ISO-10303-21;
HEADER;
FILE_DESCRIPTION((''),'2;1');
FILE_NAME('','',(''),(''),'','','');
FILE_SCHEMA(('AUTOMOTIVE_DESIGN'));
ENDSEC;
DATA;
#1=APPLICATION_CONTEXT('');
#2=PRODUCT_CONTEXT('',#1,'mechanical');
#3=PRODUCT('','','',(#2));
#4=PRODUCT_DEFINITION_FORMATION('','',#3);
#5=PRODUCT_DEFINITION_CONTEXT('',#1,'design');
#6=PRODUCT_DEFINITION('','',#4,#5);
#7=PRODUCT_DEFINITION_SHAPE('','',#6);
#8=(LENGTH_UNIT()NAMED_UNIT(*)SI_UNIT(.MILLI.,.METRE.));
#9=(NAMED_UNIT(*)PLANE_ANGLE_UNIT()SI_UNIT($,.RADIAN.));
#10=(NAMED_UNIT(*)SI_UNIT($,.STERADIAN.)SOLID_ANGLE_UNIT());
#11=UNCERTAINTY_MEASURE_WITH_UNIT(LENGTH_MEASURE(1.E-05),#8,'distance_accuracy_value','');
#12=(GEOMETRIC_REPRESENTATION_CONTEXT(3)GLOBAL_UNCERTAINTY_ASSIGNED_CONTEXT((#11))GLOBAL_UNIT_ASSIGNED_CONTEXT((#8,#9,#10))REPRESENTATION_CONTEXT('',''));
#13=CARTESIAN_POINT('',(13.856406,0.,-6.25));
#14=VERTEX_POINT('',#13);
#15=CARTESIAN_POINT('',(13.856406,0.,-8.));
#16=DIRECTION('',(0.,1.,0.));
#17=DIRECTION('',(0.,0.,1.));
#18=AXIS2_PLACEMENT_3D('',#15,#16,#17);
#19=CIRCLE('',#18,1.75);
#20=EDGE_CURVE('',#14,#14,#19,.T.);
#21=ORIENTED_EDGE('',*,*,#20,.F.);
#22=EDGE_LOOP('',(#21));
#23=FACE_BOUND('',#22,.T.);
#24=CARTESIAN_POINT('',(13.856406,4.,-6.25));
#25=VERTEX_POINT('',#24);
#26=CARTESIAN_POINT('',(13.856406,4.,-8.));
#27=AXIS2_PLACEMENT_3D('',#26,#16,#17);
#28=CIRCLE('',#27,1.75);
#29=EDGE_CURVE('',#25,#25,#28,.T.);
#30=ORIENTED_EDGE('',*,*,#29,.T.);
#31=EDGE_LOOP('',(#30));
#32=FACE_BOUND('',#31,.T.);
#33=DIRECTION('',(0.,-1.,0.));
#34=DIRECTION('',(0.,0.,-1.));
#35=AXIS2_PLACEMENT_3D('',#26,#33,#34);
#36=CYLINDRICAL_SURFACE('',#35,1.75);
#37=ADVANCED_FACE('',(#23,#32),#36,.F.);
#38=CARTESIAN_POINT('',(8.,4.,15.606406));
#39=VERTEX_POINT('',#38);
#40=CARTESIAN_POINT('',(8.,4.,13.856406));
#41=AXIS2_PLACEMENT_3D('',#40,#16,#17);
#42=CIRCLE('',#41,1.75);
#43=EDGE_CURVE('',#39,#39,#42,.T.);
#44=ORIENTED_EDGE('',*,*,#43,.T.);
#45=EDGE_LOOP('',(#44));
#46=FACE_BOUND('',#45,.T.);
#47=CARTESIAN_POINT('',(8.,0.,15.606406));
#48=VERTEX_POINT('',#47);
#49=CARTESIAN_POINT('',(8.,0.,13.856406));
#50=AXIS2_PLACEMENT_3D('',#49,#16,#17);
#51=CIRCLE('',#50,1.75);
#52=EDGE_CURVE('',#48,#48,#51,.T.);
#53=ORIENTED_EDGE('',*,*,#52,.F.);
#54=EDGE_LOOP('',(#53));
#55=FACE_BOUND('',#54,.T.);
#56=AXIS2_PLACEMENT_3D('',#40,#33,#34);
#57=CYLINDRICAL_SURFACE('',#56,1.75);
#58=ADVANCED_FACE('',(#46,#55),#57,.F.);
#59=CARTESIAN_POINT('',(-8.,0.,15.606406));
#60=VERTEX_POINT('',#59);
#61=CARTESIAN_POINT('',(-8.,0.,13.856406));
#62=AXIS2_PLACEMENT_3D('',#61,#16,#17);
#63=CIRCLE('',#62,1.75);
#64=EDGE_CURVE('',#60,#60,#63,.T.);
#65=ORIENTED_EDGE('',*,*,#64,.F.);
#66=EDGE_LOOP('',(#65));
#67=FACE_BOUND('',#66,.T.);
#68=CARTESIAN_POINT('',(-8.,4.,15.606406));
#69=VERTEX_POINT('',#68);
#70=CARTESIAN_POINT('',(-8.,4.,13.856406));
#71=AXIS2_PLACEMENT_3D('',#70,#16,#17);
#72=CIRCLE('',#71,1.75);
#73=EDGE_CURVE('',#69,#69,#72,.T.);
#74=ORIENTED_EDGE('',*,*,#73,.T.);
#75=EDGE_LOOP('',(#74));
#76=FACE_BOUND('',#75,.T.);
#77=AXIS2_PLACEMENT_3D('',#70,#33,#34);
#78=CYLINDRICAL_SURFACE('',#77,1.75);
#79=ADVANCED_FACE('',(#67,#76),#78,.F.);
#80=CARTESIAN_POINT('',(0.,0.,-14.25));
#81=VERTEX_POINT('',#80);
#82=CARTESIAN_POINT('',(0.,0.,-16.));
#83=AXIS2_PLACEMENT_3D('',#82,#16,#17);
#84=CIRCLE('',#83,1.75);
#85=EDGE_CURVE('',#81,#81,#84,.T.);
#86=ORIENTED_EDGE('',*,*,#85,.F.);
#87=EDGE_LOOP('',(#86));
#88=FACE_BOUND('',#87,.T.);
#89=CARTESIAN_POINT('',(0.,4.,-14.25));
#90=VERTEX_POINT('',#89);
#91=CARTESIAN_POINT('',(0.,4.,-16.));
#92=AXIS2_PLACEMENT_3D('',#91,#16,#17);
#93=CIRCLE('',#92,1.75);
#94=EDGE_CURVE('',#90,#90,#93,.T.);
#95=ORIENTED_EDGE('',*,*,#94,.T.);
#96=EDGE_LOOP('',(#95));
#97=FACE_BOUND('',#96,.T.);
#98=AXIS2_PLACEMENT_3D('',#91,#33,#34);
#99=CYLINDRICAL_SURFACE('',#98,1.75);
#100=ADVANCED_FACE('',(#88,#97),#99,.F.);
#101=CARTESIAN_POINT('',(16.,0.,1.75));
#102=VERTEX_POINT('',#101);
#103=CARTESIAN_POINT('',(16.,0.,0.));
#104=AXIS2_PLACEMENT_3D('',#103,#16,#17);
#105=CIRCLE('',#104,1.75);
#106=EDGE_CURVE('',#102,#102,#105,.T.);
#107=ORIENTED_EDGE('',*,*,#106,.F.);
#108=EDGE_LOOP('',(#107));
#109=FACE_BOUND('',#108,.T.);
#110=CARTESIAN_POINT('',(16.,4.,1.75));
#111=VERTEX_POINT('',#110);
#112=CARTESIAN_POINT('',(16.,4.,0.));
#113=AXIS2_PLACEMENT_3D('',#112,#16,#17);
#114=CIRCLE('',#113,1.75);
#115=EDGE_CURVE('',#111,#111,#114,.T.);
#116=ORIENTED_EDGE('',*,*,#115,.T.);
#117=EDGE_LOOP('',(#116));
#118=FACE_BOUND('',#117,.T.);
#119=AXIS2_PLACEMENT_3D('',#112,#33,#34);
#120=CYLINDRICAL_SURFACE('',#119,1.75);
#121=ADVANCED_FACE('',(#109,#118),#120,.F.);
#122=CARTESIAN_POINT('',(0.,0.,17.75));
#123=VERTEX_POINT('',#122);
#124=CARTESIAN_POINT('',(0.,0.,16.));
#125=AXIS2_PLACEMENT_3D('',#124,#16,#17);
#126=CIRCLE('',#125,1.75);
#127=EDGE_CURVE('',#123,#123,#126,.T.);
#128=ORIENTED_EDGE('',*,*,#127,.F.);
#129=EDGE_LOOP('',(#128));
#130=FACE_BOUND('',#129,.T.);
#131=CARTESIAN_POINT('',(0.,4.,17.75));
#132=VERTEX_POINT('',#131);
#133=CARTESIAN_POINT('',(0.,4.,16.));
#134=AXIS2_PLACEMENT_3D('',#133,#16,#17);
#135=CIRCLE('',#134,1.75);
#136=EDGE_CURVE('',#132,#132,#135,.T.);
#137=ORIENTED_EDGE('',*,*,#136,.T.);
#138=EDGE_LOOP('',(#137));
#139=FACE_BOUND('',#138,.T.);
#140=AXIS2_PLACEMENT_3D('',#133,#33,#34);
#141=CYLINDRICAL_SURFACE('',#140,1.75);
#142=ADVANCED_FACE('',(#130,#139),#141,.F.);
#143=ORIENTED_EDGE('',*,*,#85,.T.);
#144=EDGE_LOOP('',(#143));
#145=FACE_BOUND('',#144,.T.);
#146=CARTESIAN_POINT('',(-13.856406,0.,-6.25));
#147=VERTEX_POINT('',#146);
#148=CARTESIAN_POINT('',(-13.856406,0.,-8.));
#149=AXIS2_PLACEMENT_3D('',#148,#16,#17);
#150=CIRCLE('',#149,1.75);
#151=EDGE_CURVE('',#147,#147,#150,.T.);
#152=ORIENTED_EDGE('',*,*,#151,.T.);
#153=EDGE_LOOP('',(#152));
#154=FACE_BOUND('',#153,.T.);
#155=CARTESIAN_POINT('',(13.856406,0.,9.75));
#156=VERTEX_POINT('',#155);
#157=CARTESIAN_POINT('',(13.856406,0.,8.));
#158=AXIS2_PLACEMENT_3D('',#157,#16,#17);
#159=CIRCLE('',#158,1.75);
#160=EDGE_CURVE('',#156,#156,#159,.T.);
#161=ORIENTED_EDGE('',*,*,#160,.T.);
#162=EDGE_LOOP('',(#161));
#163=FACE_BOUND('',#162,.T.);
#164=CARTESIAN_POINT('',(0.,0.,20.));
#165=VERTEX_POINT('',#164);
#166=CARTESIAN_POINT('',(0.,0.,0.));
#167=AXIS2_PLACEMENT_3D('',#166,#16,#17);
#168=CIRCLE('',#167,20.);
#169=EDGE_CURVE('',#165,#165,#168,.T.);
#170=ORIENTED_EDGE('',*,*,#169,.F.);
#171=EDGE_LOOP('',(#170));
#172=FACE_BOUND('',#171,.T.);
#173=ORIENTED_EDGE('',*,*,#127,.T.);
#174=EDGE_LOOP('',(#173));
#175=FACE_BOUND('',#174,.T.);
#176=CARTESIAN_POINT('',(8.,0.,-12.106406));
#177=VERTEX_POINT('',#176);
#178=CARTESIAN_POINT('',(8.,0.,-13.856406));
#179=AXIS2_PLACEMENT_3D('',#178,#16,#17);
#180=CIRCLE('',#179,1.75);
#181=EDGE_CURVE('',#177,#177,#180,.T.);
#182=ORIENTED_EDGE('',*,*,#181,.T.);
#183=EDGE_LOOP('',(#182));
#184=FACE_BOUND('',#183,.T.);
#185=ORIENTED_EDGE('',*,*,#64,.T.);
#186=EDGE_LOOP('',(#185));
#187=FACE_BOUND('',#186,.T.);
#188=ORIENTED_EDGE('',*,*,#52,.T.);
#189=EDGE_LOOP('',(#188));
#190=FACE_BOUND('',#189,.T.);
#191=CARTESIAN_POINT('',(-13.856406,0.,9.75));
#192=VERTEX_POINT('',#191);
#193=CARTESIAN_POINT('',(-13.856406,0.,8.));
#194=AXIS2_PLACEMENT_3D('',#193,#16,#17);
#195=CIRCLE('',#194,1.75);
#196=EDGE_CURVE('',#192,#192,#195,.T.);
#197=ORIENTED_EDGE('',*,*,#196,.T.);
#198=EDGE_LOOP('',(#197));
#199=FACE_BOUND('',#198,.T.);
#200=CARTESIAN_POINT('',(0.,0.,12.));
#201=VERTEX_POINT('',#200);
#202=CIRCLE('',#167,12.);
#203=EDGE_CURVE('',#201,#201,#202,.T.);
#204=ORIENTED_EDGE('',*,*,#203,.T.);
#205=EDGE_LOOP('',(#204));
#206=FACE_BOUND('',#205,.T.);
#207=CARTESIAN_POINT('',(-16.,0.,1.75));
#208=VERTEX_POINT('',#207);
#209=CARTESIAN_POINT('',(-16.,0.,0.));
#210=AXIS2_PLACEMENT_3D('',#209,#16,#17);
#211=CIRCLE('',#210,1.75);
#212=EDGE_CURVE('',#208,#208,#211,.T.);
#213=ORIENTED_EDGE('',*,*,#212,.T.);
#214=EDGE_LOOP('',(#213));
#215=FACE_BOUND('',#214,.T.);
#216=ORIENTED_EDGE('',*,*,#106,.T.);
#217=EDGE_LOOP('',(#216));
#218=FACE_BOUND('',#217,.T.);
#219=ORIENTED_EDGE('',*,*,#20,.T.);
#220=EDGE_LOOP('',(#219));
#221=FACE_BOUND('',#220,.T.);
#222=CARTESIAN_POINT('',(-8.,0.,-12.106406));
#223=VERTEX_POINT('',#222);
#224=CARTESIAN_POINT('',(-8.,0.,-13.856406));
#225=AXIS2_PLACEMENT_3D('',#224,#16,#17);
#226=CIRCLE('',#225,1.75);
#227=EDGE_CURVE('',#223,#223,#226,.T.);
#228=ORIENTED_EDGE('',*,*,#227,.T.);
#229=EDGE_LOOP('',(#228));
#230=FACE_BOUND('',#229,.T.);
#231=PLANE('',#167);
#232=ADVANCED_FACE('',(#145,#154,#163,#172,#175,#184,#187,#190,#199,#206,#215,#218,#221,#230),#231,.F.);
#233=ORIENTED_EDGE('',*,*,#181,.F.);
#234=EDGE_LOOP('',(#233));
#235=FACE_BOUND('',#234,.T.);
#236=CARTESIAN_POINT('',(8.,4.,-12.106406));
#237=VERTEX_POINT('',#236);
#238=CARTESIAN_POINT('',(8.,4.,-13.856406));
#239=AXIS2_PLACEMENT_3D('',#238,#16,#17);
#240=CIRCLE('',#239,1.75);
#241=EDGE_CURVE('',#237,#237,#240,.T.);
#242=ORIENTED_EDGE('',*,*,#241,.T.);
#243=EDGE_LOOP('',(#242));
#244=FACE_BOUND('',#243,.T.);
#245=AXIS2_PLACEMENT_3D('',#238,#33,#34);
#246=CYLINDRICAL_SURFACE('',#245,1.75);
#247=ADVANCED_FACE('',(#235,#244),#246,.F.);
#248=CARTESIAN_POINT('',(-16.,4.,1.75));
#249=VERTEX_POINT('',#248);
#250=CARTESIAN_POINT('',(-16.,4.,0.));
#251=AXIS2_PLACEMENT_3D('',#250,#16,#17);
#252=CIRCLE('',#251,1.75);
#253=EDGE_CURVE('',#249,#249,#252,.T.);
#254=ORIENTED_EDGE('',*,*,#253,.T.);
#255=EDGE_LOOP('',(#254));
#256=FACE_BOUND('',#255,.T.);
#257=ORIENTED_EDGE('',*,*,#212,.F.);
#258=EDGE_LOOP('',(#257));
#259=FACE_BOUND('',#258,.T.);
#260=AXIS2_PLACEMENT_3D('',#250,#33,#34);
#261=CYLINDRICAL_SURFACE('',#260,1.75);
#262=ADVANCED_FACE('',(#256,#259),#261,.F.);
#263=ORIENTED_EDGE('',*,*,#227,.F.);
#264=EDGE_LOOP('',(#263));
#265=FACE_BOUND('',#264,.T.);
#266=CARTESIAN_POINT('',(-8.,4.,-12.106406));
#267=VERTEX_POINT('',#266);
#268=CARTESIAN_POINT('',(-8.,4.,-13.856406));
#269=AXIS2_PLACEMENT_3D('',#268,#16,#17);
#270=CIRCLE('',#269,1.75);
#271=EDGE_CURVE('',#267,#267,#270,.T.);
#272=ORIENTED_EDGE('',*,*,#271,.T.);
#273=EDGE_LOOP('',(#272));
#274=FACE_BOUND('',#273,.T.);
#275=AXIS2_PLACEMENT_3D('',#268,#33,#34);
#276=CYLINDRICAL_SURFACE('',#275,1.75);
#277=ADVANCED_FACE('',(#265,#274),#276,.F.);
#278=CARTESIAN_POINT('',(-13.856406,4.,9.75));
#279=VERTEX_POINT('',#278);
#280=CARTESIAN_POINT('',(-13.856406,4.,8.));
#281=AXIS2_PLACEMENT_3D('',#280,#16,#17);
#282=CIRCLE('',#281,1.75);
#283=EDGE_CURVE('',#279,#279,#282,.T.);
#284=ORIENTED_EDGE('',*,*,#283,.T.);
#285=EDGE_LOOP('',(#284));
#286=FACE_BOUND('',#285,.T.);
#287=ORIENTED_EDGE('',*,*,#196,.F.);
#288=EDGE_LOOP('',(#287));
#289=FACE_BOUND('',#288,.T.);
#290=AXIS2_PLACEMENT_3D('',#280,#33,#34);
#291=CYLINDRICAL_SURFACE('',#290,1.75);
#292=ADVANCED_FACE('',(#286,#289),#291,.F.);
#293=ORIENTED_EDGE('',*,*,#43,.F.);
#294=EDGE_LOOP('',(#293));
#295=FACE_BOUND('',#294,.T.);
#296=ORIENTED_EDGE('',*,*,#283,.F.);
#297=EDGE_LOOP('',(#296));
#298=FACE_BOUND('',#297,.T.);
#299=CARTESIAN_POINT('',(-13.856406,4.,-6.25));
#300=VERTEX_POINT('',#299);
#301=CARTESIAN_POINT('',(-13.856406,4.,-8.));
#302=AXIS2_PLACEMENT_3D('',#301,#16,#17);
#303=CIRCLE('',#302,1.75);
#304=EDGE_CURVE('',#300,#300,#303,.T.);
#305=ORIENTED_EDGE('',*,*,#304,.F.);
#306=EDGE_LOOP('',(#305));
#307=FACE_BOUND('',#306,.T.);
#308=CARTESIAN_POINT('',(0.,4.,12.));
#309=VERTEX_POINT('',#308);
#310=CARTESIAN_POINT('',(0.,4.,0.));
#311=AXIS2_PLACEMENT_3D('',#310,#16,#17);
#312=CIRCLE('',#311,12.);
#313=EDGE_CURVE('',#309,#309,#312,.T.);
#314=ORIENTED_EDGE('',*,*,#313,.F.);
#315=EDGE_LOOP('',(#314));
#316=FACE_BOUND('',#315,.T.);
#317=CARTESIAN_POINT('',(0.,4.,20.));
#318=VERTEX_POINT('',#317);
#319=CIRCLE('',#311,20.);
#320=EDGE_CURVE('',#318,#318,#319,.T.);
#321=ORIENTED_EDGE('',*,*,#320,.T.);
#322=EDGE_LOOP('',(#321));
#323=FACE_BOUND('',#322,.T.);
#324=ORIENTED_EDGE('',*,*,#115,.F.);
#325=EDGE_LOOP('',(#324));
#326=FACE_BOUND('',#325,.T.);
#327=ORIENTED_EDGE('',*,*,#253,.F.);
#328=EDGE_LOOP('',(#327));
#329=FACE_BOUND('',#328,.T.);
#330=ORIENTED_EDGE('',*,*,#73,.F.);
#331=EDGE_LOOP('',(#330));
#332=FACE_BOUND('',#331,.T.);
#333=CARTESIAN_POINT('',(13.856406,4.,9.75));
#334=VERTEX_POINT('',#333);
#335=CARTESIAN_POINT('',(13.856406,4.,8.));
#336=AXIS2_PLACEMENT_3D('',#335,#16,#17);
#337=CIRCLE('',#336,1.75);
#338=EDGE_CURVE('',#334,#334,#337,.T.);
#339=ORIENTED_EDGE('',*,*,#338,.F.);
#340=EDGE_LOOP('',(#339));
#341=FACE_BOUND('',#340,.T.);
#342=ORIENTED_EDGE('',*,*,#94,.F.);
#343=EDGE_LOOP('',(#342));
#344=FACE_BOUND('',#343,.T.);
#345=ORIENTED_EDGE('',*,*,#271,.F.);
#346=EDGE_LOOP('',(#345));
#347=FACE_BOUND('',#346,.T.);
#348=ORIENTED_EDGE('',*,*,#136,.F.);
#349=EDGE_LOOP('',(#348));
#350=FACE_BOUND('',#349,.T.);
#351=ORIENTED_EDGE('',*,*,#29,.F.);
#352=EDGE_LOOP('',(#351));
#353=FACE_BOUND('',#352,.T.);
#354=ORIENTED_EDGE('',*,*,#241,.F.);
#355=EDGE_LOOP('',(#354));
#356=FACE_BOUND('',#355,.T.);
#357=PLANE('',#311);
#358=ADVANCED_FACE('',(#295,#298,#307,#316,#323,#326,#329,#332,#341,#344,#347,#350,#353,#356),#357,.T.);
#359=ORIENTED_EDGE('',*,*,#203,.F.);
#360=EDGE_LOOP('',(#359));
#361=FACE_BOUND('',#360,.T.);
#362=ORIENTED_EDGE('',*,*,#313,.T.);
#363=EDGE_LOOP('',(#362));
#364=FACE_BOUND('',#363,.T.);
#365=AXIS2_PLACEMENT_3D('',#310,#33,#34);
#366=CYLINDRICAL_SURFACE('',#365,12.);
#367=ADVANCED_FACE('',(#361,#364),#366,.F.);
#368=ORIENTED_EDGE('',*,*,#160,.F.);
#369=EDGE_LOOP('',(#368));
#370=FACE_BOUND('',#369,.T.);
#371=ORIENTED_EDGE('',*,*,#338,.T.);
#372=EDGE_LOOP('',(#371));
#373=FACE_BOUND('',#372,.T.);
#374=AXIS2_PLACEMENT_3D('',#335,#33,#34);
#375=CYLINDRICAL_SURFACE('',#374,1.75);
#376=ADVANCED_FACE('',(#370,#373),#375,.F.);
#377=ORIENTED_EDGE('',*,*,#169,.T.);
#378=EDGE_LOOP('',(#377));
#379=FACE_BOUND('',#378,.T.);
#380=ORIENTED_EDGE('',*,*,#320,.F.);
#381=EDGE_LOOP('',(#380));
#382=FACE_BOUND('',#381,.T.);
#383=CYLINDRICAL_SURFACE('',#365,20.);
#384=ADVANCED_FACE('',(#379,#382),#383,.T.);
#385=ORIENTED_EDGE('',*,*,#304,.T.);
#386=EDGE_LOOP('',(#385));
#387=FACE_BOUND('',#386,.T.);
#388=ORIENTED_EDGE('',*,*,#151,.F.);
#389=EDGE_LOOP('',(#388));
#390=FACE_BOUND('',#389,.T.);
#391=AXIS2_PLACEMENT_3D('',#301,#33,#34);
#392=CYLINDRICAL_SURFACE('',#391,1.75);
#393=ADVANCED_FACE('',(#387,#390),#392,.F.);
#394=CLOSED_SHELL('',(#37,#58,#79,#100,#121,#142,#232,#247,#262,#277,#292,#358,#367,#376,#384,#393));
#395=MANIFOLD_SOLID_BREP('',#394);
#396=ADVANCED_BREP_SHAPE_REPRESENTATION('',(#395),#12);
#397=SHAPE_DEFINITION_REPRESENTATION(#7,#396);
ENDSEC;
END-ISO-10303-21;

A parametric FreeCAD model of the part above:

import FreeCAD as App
import Part
import Sketcher
from FreeCAD import Vector

doc = App.newDocument("Part")
params = doc.addObject("Spreadsheet::Sheet", "Params")
for row, (alias, value) in enumerate([
    ("sketch1_diameter", "40 mm"),
    ("sketch1_diameter2", "24 mm"),
    ("sketch1_diameter3", "3.5 mm"),
    ("pad1_length", "4 mm"),
], start=1):
    params.set(f"A{row}", alias)
    params.set(f"B{row}", "=" + value)
    params.setAlias(f"B{row}", alias)

body = doc.addObject("PartDesign::Body", "Body")

# Sketch on XZ plane
sketch1 = body.newObject("Sketcher::SketchObject", "Sketch")
sketch1.AttachmentSupport = (doc.getObject("XZ_Plane"), [""])
sketch1.MapMode = "FlatFace"
sketch1.addGeometry(Part.Circle(Vector(0, 0, 0), Vector(0, 0, 1), 20), False)
sketch1.addGeometry(Part.Circle(Vector(-13.856406, -8, 0), Vector(0, 0, 1), 1.75), False)
sketch1.addGeometry(Part.Circle(Vector(-8, -13.856406, 0), Vector(0, 0, 1), 1.75), False)
sketch1.addGeometry(Part.Circle(Vector(0, -16, 0), Vector(0, 0, 1), 1.75), False)
sketch1.addGeometry(Part.Circle(Vector(-16, 0, 0), Vector(0, 0, 1), 1.75), False)
sketch1.addGeometry(Part.Circle(Vector(-13.856406, 8, 0), Vector(0, 0, 1), 1.75), False)
sketch1.addGeometry(Part.Circle(Vector(-8, 13.856406, 0), Vector(0, 0, 1), 1.75), False)
sketch1.addGeometry(Part.Circle(Vector(8, -13.856406, 0), Vector(0, 0, 1), 1.75), False)
sketch1.addGeometry(Part.Circle(Vector(13.856406, -8, 0), Vector(0, 0, 1), 1.75), False)
sketch1.addGeometry(Part.Circle(Vector(16, 0, 0), Vector(0, 0, 1), 1.75), False)
sketch1.addGeometry(Part.Circle(Vector(0, 0, 0), Vector(0, 0, 1), 12), False)
sketch1.addGeometry(Part.Circle(Vector(0, 16, 0), Vector(0, 0, 1), 1.75), False)
sketch1.addGeometry(Part.Circle(Vector(8, 13.856406, 0), Vector(0, 0, 1), 1.75), False)
sketch1.addGeometry(Part.Circle(Vector(13.856406, 8, 0), Vector(0, 0, 1), 1.75), False)
sketch1.addConstraint(Sketcher.Constraint("Coincident", 0, 3, -1, 1))
sketch1.addConstraint(Sketcher.Constraint("Coincident", 10, 3, -1, 1))
sketch1.addConstraint(Sketcher.Constraint("Equal", 1, 2))
sketch1.addConstraint(Sketcher.Constraint("Equal", 2, 3))
sketch1.addConstraint(Sketcher.Constraint("Equal", 3, 4))
sketch1.addConstraint(Sketcher.Constraint("Equal", 4, 5))
sketch1.addConstraint(Sketcher.Constraint("Equal", 5, 6))
sketch1.addConstraint(Sketcher.Constraint("Equal", 6, 7))
sketch1.addConstraint(Sketcher.Constraint("Equal", 7, 8))
sketch1.addConstraint(Sketcher.Constraint("Equal", 8, 9))
sketch1.addConstraint(Sketcher.Constraint("Equal", 9, 11))
sketch1.addConstraint(Sketcher.Constraint("Equal", 11, 12))
sketch1.addConstraint(Sketcher.Constraint("Equal", 12, 13))
sketch1.addConstraint(Sketcher.Constraint("Symmetric", 6, 3, 7, 3, -1, 1))
sketch1.addConstraint(Sketcher.Constraint("Symmetric", 5, 3, 8, 3, -1, 1))
sketch1.addConstraint(Sketcher.Constraint("Symmetric", 4, 3, 9, 3, -1, 1))
sketch1.addConstraint(Sketcher.Constraint("Symmetric", 3, 3, 11, 3, -1, 1))
sketch1.addConstraint(Sketcher.Constraint("Symmetric", 2, 3, 12, 3, -1, 1))
sketch1.addConstraint(Sketcher.Constraint("Symmetric", 1, 3, 13, 3, -1, 1))
sketch1.addConstraint(Sketcher.Constraint("Symmetric", 2, 3, 7, 3, -2))
sketch1.addConstraint(Sketcher.Constraint("Symmetric", 1, 3, 8, 3, -2))
sketch1.addConstraint(Sketcher.Constraint("PointOnObject", 3, 3, -2))
sketch1.addConstraint(Sketcher.Constraint("PointOnObject", 4, 3, -1))
sketch1.addConstraint(Sketcher.Constraint("Diameter", 0, 40.0))
sketch1.addConstraint(Sketcher.Constraint("Diameter", 10, 24.0))
sketch1.addConstraint(Sketcher.Constraint("Diameter", 1, 3.5))
sketch1.addConstraint(Sketcher.Constraint("DistanceY", 1, 3, -1, 1, 8.0))
sketch1.addConstraint(Sketcher.Constraint("DistanceX", 2, 3, -1, 1, 8.0))
sketch1.addConstraint(Sketcher.Constraint("DistanceY", 3, 3, -1, 1, 16.0))
sketch1.addConstraint(Sketcher.Constraint("DistanceX", 4, 3, -1, 1, 16.0))
sketch1.addConstraint(Sketcher.Constraint("DistanceX", 1, 3, -1, 1, 13.856406))
sketch1.addConstraint(Sketcher.Constraint("DistanceY", 2, 3, -1, 1, 13.856406))
sketch1.setExpression("Constraints[23]", "Params.sketch1_diameter")
sketch1.setExpression("Constraints[24]", "Params.sketch1_diameter2")
sketch1.setExpression("Constraints[25]", "Params.sketch1_diameter3")
pad1 = body.newObject("PartDesign::Pad", "Pad")
pad1.Profile = sketch1
pad1.setExpression("Length", "Params.pad1_length")
pad1.Reversed = True

doc.recompute()
